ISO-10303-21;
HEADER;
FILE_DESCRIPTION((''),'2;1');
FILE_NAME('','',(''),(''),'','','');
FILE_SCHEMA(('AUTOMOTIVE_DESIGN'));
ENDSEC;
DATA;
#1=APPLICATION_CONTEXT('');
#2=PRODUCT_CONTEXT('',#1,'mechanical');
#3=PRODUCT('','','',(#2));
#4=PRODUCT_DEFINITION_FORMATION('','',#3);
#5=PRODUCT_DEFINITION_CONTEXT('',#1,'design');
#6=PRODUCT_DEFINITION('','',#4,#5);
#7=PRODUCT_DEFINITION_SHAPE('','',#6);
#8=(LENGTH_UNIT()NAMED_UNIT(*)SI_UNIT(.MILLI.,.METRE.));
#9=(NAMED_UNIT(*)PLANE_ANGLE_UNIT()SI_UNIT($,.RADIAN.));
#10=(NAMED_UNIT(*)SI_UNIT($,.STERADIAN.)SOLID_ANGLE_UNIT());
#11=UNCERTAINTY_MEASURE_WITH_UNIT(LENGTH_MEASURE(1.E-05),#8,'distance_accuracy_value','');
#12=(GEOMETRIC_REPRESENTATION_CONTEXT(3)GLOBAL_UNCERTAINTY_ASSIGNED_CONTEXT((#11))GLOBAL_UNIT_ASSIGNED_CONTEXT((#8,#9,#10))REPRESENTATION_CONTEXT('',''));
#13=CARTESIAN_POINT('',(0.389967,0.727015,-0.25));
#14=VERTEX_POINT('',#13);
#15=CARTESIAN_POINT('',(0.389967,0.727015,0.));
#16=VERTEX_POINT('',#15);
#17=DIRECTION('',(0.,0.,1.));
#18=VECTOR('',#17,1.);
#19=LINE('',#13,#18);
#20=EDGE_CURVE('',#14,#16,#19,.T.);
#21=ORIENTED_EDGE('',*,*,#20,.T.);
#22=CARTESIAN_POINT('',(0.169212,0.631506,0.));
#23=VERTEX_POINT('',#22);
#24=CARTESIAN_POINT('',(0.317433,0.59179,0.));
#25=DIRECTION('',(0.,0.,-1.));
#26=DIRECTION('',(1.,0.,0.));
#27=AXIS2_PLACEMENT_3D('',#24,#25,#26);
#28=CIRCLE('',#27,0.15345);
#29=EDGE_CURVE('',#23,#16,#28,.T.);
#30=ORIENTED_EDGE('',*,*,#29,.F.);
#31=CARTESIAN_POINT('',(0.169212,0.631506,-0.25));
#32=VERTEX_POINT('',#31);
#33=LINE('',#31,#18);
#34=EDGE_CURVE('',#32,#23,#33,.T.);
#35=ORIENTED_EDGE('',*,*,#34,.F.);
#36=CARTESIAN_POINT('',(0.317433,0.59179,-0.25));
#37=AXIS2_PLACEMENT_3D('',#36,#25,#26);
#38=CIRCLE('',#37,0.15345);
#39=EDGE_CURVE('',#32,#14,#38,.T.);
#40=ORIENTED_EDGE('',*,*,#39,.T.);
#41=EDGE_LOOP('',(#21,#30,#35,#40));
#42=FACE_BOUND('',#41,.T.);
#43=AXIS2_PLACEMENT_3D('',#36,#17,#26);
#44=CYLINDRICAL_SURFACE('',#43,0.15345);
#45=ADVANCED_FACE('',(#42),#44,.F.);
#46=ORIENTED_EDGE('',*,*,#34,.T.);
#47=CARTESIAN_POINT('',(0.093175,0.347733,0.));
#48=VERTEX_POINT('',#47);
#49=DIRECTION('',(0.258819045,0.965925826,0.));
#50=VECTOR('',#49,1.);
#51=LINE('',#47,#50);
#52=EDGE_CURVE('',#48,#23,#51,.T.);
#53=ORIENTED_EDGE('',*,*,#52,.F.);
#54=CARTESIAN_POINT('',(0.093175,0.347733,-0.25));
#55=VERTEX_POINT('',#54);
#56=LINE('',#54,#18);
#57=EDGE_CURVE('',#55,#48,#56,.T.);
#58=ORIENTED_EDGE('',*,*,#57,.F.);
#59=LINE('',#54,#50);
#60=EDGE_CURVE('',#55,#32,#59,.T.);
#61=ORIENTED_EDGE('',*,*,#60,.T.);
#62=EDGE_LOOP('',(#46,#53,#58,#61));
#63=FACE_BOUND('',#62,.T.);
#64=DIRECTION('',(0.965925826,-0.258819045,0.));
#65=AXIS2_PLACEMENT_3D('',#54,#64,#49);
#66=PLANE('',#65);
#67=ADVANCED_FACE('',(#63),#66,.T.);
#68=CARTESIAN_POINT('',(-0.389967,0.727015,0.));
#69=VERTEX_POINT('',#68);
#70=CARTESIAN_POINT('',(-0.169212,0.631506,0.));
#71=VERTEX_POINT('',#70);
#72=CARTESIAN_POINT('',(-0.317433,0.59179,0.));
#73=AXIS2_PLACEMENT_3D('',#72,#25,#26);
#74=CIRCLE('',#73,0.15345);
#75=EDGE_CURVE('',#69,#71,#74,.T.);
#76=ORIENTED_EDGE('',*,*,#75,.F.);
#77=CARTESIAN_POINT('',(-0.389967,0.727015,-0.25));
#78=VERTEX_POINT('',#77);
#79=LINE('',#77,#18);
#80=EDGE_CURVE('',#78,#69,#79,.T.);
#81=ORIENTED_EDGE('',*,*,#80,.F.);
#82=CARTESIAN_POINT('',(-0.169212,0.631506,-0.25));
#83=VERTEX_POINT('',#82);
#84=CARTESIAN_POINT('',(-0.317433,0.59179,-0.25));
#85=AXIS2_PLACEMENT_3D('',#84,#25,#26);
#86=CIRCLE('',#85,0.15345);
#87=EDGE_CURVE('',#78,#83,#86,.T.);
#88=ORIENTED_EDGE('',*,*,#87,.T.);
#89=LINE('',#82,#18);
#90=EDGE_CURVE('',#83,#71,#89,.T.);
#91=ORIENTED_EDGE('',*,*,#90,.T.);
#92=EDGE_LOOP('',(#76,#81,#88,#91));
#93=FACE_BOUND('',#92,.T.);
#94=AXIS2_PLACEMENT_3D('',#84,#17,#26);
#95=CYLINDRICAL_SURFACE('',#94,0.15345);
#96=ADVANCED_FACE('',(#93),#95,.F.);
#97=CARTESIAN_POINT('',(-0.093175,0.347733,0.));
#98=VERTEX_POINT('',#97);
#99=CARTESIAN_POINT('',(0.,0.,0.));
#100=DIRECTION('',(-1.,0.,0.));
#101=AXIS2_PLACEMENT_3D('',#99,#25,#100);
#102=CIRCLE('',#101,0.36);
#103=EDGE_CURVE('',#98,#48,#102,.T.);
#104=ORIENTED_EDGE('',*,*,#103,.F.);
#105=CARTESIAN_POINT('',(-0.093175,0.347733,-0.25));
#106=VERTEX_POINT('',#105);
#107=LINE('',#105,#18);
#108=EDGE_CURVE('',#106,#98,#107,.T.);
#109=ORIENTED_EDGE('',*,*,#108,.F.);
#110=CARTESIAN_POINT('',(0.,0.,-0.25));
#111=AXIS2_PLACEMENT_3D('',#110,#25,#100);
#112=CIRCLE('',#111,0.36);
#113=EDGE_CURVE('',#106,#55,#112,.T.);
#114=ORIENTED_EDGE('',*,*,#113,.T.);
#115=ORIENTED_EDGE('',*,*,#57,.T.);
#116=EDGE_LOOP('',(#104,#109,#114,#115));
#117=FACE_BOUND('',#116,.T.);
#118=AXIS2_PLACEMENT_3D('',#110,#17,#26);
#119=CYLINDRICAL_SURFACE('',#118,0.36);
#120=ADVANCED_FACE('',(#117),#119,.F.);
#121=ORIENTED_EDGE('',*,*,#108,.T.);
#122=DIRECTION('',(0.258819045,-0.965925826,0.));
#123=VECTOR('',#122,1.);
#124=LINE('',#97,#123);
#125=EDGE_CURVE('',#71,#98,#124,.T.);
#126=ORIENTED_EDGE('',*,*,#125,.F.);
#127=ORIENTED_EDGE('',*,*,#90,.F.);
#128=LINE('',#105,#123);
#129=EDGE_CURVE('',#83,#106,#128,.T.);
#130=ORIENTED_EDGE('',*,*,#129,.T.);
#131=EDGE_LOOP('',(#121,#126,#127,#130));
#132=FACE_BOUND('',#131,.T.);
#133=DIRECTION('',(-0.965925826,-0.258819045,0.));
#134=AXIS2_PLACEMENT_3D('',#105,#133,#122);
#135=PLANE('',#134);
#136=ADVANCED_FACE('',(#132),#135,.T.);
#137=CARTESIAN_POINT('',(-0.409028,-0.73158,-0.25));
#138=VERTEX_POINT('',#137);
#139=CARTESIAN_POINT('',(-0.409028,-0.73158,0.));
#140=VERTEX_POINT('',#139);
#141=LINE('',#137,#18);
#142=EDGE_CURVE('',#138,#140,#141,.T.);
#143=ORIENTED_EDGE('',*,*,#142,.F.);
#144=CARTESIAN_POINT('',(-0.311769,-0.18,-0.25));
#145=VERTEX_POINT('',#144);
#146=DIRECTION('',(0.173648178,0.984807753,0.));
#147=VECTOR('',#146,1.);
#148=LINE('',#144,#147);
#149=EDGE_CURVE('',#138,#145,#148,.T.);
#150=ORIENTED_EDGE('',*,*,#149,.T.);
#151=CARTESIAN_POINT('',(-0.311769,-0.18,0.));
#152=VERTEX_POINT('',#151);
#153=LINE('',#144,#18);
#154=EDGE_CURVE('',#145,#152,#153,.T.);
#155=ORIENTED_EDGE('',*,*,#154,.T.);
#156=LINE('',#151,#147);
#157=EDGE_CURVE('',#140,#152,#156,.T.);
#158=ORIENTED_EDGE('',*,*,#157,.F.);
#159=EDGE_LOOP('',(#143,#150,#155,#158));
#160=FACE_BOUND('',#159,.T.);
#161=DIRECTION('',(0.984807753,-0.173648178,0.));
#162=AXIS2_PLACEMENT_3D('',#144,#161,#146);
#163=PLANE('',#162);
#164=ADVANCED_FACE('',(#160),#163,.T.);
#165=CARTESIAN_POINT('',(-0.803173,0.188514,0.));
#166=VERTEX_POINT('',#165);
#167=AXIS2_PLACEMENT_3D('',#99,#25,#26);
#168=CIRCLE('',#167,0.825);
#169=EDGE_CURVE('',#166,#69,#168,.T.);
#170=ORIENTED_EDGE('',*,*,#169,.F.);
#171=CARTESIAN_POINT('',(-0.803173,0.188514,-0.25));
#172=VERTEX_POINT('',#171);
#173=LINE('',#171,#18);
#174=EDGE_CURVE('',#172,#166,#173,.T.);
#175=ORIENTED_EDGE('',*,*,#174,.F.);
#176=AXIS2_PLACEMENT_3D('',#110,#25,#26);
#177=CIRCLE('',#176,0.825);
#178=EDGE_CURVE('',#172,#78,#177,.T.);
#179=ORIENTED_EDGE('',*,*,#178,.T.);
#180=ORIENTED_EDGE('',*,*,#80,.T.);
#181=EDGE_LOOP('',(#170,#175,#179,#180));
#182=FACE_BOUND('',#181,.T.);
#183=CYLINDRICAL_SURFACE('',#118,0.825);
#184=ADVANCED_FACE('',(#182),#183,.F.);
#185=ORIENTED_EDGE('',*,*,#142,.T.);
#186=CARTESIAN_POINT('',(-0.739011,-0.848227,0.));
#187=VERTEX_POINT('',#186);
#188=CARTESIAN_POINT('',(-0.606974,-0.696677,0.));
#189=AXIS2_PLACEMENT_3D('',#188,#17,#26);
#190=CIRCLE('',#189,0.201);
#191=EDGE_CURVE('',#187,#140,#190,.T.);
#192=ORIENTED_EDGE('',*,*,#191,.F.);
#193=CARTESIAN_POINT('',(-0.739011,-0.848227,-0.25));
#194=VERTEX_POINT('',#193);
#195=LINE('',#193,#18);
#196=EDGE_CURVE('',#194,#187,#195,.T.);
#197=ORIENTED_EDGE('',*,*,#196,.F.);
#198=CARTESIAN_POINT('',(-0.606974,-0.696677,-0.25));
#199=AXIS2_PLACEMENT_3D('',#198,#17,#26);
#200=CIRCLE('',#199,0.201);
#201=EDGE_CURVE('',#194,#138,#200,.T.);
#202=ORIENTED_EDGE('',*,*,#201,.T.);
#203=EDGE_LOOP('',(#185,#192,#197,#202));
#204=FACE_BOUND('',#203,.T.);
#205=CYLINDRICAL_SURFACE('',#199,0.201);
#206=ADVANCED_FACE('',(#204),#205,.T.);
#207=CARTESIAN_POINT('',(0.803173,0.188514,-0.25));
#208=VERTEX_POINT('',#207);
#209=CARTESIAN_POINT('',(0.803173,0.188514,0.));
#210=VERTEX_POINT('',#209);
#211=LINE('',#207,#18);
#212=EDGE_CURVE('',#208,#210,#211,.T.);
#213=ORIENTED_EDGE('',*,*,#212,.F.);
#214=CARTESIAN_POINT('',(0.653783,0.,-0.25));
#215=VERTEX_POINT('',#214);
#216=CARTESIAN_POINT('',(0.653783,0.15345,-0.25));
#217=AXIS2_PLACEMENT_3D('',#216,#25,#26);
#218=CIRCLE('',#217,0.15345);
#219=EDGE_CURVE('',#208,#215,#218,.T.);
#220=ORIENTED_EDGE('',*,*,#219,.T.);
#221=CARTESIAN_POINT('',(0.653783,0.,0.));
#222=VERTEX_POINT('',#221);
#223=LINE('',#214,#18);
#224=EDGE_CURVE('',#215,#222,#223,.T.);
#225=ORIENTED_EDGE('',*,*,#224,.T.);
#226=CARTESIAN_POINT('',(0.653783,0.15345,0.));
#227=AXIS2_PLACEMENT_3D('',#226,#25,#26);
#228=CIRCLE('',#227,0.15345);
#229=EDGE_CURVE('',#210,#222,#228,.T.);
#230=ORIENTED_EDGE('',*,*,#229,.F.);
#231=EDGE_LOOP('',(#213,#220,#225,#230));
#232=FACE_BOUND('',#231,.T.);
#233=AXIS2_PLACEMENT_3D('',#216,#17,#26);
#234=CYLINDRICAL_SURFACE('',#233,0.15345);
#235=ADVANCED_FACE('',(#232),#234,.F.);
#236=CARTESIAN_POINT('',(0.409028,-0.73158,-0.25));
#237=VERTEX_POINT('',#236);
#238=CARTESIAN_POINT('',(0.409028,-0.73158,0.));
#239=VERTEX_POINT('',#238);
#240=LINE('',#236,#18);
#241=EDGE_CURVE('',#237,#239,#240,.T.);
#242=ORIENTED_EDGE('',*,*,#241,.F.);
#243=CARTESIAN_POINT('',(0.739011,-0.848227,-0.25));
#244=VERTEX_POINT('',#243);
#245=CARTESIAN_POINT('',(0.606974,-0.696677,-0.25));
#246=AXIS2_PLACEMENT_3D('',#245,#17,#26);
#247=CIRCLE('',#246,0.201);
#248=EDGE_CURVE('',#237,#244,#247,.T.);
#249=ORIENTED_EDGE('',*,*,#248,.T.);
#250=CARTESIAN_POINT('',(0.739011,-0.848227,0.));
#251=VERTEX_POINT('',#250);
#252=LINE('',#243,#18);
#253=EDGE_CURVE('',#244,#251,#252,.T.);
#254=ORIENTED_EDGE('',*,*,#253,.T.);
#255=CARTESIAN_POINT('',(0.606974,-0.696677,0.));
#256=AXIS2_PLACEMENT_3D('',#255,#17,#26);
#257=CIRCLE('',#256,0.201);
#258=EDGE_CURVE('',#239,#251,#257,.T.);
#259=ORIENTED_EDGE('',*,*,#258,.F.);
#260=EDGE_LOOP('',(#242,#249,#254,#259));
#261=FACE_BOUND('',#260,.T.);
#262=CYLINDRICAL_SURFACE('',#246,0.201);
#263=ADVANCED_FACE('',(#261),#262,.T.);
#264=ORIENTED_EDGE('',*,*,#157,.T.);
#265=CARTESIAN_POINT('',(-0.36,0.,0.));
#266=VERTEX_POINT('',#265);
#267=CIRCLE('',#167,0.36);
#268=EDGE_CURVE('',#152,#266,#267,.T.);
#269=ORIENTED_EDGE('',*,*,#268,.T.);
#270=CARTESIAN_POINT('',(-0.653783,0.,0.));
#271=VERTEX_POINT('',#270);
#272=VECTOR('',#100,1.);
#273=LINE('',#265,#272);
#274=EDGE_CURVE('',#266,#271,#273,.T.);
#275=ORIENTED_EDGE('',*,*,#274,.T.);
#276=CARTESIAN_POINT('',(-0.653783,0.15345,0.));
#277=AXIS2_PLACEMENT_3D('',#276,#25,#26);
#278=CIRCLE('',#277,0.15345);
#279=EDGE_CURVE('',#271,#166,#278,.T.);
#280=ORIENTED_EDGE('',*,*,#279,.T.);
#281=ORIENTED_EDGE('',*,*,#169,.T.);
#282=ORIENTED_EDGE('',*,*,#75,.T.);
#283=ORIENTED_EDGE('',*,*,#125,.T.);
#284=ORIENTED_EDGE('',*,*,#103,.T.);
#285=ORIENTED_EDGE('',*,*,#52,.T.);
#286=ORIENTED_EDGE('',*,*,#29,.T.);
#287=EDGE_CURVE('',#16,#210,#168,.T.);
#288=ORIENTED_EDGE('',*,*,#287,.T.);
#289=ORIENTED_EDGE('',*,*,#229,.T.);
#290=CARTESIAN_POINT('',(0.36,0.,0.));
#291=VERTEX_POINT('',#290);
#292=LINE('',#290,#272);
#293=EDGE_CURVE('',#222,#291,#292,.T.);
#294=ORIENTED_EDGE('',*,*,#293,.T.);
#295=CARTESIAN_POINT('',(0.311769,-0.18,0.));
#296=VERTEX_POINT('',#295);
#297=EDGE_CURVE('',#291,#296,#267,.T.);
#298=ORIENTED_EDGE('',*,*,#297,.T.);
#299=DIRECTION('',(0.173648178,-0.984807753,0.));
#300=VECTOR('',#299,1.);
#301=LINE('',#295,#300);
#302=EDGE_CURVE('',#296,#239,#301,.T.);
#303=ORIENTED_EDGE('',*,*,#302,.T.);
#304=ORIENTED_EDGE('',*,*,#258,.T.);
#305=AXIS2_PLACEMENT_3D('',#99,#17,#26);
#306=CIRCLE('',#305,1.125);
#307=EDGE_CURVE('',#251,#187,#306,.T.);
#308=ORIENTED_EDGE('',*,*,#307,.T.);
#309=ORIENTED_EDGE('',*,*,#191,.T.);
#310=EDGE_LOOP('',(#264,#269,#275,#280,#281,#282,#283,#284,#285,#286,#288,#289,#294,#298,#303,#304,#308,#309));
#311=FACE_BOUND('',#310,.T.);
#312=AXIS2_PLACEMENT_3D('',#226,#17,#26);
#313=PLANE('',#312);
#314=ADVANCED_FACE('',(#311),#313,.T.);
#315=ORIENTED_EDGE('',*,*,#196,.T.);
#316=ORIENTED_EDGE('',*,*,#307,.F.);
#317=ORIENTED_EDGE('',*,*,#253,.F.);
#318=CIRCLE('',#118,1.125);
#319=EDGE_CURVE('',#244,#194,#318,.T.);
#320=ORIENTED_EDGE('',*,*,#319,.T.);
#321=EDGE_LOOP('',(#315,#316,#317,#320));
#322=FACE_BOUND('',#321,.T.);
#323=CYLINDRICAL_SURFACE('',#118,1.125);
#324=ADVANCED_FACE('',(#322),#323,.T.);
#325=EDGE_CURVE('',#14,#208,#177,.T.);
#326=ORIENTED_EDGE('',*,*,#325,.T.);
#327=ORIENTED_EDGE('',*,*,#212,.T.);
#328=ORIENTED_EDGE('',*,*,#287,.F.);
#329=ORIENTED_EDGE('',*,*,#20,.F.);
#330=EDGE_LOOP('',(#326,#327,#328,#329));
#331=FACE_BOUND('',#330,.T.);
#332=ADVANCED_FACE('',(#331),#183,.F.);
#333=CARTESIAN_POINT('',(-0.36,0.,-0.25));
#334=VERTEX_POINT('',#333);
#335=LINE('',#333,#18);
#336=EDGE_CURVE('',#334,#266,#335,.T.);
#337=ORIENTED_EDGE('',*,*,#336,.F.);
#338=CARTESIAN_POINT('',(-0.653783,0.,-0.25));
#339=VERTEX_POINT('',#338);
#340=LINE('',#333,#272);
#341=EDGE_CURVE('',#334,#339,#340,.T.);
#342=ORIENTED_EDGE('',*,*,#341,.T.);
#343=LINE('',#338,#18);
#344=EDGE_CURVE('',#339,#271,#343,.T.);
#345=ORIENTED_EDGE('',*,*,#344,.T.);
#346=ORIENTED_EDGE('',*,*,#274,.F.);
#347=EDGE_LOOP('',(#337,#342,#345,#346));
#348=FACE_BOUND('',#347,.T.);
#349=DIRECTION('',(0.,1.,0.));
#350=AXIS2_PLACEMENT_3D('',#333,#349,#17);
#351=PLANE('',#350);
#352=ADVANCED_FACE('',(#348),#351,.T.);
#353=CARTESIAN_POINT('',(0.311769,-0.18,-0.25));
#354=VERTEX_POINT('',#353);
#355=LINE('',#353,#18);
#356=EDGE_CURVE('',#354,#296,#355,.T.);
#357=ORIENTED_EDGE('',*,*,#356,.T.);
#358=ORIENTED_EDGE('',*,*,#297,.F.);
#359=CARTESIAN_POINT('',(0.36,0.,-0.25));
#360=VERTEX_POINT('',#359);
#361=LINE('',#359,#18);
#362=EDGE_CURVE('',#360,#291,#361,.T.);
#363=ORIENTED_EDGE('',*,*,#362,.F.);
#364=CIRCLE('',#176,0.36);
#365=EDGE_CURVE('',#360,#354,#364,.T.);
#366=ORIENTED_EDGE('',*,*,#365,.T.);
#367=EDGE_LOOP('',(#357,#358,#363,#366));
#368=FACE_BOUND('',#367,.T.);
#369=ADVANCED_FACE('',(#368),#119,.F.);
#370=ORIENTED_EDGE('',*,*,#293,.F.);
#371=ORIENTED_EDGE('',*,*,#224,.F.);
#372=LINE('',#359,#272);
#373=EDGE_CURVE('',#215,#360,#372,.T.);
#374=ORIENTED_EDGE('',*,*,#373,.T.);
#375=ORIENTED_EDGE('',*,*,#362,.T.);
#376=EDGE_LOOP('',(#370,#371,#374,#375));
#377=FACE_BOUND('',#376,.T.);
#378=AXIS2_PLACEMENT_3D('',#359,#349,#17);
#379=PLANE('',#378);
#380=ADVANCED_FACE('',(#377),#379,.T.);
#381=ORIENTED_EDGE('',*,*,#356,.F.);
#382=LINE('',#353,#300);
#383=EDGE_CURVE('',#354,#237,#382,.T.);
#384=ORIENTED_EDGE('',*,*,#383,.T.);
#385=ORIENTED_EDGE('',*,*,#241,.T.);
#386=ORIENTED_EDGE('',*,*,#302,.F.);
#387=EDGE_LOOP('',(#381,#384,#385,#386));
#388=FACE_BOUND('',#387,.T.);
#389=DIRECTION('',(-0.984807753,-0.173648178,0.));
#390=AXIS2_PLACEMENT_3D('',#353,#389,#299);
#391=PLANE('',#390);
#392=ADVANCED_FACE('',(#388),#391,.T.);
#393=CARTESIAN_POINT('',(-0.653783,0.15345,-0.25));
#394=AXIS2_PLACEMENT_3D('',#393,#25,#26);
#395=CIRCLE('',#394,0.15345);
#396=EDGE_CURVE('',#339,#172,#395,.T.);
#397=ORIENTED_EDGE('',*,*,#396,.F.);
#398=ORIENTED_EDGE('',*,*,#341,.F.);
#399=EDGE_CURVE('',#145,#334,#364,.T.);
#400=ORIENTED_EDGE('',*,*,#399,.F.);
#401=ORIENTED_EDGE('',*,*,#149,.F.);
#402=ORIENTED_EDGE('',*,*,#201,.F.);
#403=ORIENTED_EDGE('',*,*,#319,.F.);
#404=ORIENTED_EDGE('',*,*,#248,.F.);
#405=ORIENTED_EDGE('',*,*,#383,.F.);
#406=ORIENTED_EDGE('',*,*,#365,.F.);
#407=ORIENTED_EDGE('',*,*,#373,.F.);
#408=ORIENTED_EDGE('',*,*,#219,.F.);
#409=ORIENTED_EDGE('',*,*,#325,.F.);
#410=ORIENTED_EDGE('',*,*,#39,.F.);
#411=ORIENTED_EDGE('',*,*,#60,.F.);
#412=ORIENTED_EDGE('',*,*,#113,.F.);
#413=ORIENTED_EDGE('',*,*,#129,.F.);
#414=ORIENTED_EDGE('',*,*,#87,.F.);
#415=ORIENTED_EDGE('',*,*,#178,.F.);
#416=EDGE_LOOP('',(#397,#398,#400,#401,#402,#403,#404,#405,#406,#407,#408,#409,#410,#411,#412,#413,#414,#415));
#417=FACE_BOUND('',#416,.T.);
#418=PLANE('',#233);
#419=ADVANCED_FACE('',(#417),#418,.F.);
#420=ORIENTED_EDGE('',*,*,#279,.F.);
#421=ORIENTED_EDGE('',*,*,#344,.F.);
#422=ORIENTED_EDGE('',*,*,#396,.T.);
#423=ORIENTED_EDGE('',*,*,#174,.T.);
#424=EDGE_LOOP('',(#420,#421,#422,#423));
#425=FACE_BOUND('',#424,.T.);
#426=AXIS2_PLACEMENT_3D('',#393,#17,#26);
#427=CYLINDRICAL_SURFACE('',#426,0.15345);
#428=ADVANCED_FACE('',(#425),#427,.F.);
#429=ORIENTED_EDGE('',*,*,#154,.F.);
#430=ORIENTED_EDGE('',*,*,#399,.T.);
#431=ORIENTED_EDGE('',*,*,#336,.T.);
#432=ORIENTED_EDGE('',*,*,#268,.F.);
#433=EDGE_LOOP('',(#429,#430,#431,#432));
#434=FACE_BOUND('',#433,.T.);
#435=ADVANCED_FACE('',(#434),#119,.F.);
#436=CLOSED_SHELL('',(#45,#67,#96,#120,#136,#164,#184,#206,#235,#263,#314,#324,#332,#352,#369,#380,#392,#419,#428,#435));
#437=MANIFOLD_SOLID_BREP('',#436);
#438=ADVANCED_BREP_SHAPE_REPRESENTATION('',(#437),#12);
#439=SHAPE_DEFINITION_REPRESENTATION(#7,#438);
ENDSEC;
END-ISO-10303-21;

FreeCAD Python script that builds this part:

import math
import FreeCAD as App
import Part
import Sketcher
Q = App.Units.Quantity

doc = App.newDocument("Part")
body = doc.addObject("PartDesign::Body", "Body")

sketch1 = body.newObject("Sketcher::SketchObject", "Sketch")
sketch1.AttachmentSupport = (doc.getObject("XY_Plane"), [""])
sketch1.MapMode = "FlatFace"
sketch1.addGeometry([
    Part.LineSegment(App.Vector(0.311769, -0.18, 0), App.Vector(0.409028, -0.73158, 0)),
    Part.ArcOfCircle(Part.Circle(App.Vector(0.606974, -0.696677, 0), App.Vector(0, 0, 1), 0.201), math.radians(-170), math.radians(-48.936259)),
    Part.ArcOfCircle(Part.Circle(App.Vector(0, 0, 0), App.Vector(0, 0, 1), 1.125), math.radians(-48.936259), math.radians(228.936259)),
    Part.ArcOfCircle(Part.Circle(App.Vector(-0.606974, -0.696677, 0), App.Vector(0, 0, 1), 0.201), math.radians(-131.063741), math.radians(-10)),
    Part.LineSegment(App.Vector(-0.409028, -0.73158, 0), App.Vector(-0.311769, -0.18, 0)),
    Part.ArcOfCircle(Part.Circle(App.Vector(0, 0, 0), App.Vector(0, 0, 1), 0.36), math.radians(-180), math.radians(-150)),
    Part.LineSegment(App.Vector(-0.36, 0, 0), App.Vector(-0.653783, 0, 0)),
    Part.ArcOfCircle(Part.Circle(App.Vector(-0.653783, 0.15345, 0), App.Vector(0, 0, 1), 0.15345), math.radians(166.791151), math.radians(270)),
    Part.ArcOfCircle(Part.Circle(App.Vector(0, 0, 0), App.Vector(0, 0, 1), 0.825), math.radians(118.208849), math.radians(166.791151)),
    Part.ArcOfCircle(Part.Circle(App.Vector(-0.317433, 0.59179, 0), App.Vector(0, 0, 1), 0.15345), math.radians(15), math.radians(118.208848)),
    Part.LineSegment(App.Vector(-0.169212, 0.631506, 0), App.Vector(-0.093175, 0.347733, 0)),
    Part.ArcOfCircle(Part.Circle(App.Vector(0, 0, 0), App.Vector(0, 0, 1), 0.36), math.radians(74.999999), math.radians(105.000001)),
    Part.LineSegment(App.Vector(0.093175, 0.347733, 0), App.Vector(0.169212, 0.631506, 0)),
    Part.ArcOfCircle(Part.Circle(App.Vector(0.317433, 0.59179, 0), App.Vector(0, 0, 1), 0.15345), math.radians(61.791152), math.radians(165)),
    Part.ArcOfCircle(Part.Circle(App.Vector(0, 0, 0), App.Vector(0, 0, 1), 0.825), math.radians(13.208849), math.radians(61.791151)),
    Part.ArcOfCircle(Part.Circle(App.Vector(0.653783, 0.15345, 0), App.Vector(0, 0, 1), 0.15345), math.radians(-90), math.radians(13.208849)),
    Part.LineSegment(App.Vector(0.653783, 0, 0), App.Vector(0.36, 0, 0)),
    Part.ArcOfCircle(Part.Circle(App.Vector(0, 0, 0), App.Vector(0, 0, 1), 0.36), math.radians(-30), math.radians(0)),
], False)
sketch1.addConstraint([
    Sketcher.Constraint("Tangent", 0, 2, 1, 1),
    Sketcher.Constraint("Tangent", 1, 2, 2, 1),
    Sketcher.Constraint("Tangent", 2, 2, 3, 1),
    Sketcher.Constraint("Tangent", 3, 2, 4, 1),
    Sketcher.Constraint("Coincident", 4, 2, 5, 2),
    Sketcher.Constraint("Coincident", 5, 1, 6, 1),
    Sketcher.Constraint("Tangent", 6, 2, 7, 2),
    Sketcher.Constraint("Tangent", 7, 1, 8, 2),
    Sketcher.Constraint("Tangent", 8, 1, 9, 2),
    Sketcher.Constraint("Tangent", 9, 1, 10, 1),
    Sketcher.Constraint("Coincident", 10, 2, 11, 2),
    Sketcher.Constraint("Coincident", 11, 1, 12, 1),
    Sketcher.Constraint("Tangent", 12, 2, 13, 2),
    Sketcher.Constraint("Tangent", 13, 1, 14, 2),
    Sketcher.Constraint("Tangent", 14, 1, 15, 2),
    Sketcher.Constraint("Tangent", 15, 1, 16, 1),
    Sketcher.Constraint("Coincident", 16, 2, 17, 2),
    Sketcher.Constraint("Coincident", 17, 1, 0, 1),
    Sketcher.Constraint("Horizontal", 6),
    Sketcher.Constraint("Horizontal", 16),
    Sketcher.Constraint("Coincident", 2, 3, -1, 1),
    Sketcher.Constraint("Coincident", 5, 3, -1, 1),
    Sketcher.Constraint("Coincident", 8, 3, -1, 1),
    Sketcher.Constraint("Coincident", 11, 3, -1, 1),
    Sketcher.Constraint("Coincident", 14, 3, -1, 1),
    Sketcher.Constraint("Coincident", 17, 3, -1, 1),
    Sketcher.Constraint("Equal", 1, 3),
    Sketcher.Constraint("Equal", 7, 9),
    Sketcher.Constraint("Equal", 5, 11),
    Sketcher.Constraint("Equal", 9, 13),
    Sketcher.Constraint("Equal", 8, 14),
    Sketcher.Constraint("Equal", 13, 15),
    Sketcher.Constraint("Equal", 11, 17),
    Sketcher.Constraint("Symmetric", 6, 2, 15, 1, -1, 1),
    Sketcher.Constraint("Symmetric", 0, 2, 3, 2, -2),
    Sketcher.Constraint("Symmetric", 9, 1, 12, 2, -2),
    Sketcher.Constraint("Angle", 0, Q("-80 deg")),
    Sketcher.Constraint("Angle", 10, Q("-75 deg")),
    Sketcher.Constraint("Radius", 5, Q("0.36 mm")),
    Sketcher.Constraint("Radius", 1, Q("0.201 mm")),
    Sketcher.Constraint("Radius", 2, Q("1.125 mm")),
    Sketcher.Constraint("Radius", 8, Q("0.825 mm")),
    Sketcher.Constraint("DistanceY", 4, 2, -1, 1, Q("0.18 mm")),
    Sketcher.Constraint("Radius", 7, Q("0.15345 mm")),
    Sketcher.Constraint("DistanceX", 11, 1, 14, 1, Q("0.709999 mm")),
])
pad1 = body.newObject("PartDesign::Pad", "Pad")
pad1.Profile = sketch1
pad1.Length = 0.25
pad1.Reversed = True

doc.recompute()
